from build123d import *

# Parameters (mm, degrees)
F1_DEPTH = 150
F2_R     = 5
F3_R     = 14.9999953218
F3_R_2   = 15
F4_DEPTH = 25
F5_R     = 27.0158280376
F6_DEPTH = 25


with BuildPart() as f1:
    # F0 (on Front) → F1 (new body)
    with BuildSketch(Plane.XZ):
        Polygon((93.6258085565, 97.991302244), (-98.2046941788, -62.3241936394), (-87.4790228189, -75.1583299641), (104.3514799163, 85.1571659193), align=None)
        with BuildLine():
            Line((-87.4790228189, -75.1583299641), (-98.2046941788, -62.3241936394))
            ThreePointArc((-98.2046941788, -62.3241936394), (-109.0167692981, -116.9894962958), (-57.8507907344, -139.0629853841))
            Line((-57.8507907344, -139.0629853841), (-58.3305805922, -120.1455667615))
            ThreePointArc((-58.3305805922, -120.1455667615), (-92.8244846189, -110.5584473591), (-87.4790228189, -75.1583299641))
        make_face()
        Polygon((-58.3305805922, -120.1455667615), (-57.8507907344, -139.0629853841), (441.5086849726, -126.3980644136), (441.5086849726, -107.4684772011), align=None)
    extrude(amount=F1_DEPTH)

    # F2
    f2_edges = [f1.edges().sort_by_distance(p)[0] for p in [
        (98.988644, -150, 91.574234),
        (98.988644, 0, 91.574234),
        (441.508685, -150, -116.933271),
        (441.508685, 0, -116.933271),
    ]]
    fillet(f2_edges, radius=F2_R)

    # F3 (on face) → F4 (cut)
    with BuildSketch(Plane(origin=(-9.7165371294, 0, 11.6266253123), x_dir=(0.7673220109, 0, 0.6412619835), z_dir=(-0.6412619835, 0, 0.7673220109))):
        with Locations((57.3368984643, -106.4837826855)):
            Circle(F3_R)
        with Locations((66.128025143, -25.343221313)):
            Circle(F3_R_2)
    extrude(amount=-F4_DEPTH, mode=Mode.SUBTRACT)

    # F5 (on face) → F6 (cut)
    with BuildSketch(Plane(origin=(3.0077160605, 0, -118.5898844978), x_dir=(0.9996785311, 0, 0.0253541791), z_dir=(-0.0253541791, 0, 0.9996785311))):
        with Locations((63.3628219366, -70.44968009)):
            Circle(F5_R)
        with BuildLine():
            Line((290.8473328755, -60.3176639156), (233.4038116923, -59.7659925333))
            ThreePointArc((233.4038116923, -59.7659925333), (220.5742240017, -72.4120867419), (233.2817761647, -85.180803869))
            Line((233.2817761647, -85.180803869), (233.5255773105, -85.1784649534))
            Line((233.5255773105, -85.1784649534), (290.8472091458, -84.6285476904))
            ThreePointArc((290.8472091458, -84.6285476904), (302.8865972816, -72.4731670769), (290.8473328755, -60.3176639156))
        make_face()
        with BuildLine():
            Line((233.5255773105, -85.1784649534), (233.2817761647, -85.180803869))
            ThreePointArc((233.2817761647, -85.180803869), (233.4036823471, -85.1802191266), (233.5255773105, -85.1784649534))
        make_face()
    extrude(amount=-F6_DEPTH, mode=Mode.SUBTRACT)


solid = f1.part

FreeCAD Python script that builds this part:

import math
import FreeCAD as App
import Part
import Sketcher

V = App.Vector


def edges_at(feature, points):
    """Names of the edges that pass closest to the given points."""
    edges = feature.Shape.Edges
    near = lambda p: min(range(len(edges)), key=lambda i: edges[i].distToShape(Part.Vertex(*p))[0])
    return sorted({f"Edge{near(p) + 1}" for p in points})

doc = App.newDocument("Part")
body = doc.addObject("PartDesign::Body", "Body")

# Sketch on XZ plane
sketch1 = body.newObject("Sketcher::SketchObject", "Sketch")
sketch1.AttachmentSupport = (doc.getObject("XZ_Plane"), [""])
sketch1.MapMode = "FlatFace"
sketch1.addGeometry(Part.LineSegment(V(93.625809, 97.991302, 0), V(-98.204694, -62.324194, 0)), False)
sketch1.addGeometry(Part.ArcOfCircle(Part.Circle(V(-69.768516, -96.350388, 0), V(0, 0, 1), 44.344088), math.radians(129.885987), math.radians(285.590236)), False)
sketch1.addGeometry(Part.LineSegment(V(-57.850791, -139.062985, 0), V(441.508685, -126.398064, 0)), False)
sketch1.addGeometry(Part.LineSegment(V(441.508685, -126.398064, 0), V(441.508685, -107.468477, 0)), False)
sketch1.addGeometry(Part.LineSegment(V(441.508685, -107.468477, 0), V(-58.330581, -120.145567, 0)), False)
sketch1.addGeometry(Part.ArcOfCircle(Part.Circle(V(-70.16457, -95.876478, 0), V(0, 0, 1), 27.000592), math.radians(129.885987), math.radians(295.994591)), False)
sketch1.addGeometry(Part.LineSegment(V(-87.479023, -75.15833, 0), V(104.35148, 85.157166, 0)), False)
sketch1.addGeometry(Part.LineSegment(V(104.35148, 85.157166, 0), V(93.625809, 97.991302, 0)), False)
sketch1.addConstraint(Sketcher.Constraint("Tangent", 0, 2, 1, 1))
sketch1.addConstraint(Sketcher.Constraint("Coincident", 1, 2, 2, 1))
sketch1.addConstraint(Sketcher.Constraint("Coincident", 2, 2, 3, 1))
sketch1.addConstraint(Sketcher.Constraint("Coincident", 3, 2, 4, 1))
sketch1.addConstraint(Sketcher.Constraint("Coincident", 4, 2, 5, 2))
sketch1.addConstraint(Sketcher.Constraint("Tangent", 5, 1, 6, 1))
sketch1.addConstraint(Sketcher.Constraint("Coincident", 6, 2, 7, 1))
sketch1.addConstraint(Sketcher.Constraint("Coincident", 7, 2, 0, 1))
sketch1.addConstraint(Sketcher.Constraint("Vertical", 3))
sketch1.addConstraint(Sketcher.Constraint("Parallel", 2, 4))
sketch1.addConstraint(Sketcher.Constraint("Parallel", 0, 6))
sketch1.addConstraint(Sketcher.Constraint("Perpendicular", 6, 7))
sketch1.addConstraint(Sketcher.Constraint("Equal", 0, 6))
sketch1.addConstraint(Sketcher.Constraint("Distance", 0, 250.0))
sketch1.addConstraint(Sketcher.Constraint("Distance", 4, 500.0))
sketch1.addConstraint(Sketcher.Constraint("Radius", 5, 27.000592))
sketch1.addConstraint(Sketcher.Constraint("Radius", 1, 44.344088))
sketch1.addConstraint(Sketcher.Constraint("DistanceY", 3, 2, 5, 3, 11.591999))
sketch1.addConstraint(Sketcher.Constraint("DistanceX", 1, 3, 2, 2, 511.277201))
sketch1.addConstraint(Sketcher.Constraint("Distance", 7, 16.725881))
sketch1.addConstraint(Sketcher.Constraint("DistanceY", 3, 1, 3, 2, 18.929587))
sketch1.addConstraint(Sketcher.Constraint("DistanceY", 1, 3, -1, 1, 96.350388))
sketch1.addConstraint(Sketcher.Constraint("DistanceX", 5, 3, -1, 1, 70.16457))
sketch1.addConstraint(Sketcher.Constraint("DistanceY", 5, 1, -1, 1, 75.15833))
pad1 = body.newObject("PartDesign::Pad", "Pad")
pad1.Profile = sketch1
pad1.Length = 150
doc.recompute()

fillet = body.newObject("PartDesign::Fillet", "Fillet")
fillet.Base = (pad1, edges_at(pad1, [
    (98.989, -150, 91.574),
    (98.989, 0, 91.574),
    (441.509, -150, -116.933),
    (441.509, 0, -116.933),
]))
fillet.Radius = 5

# Sketch on an angled plane
sketch2 = body.newObject("Sketcher::SketchObject", "Sketch001")
sketch2.Placement = App.Placement(V(-9.716537, 0, 11.626625), App.Rotation(V(0.767322011, 0, 0.641261984), V(0, 1.000000001, 0), V(-0.641261984, 0, 0.767322011), "ZXY"))
sketch2.addGeometry(Part.Circle(V(57.336899, -106.483783, 0), V(0, 0, 1), 14.999995), False)
sketch2.addGeometry(Part.Circle(V(66.128025, -25.343221, 0), V(0, 0, 1), 15), False)
sketch2.addConstraint(Sketcher.Constraint("Diameter", 1, 30.0))
sketch2.addConstraint(Sketcher.Constraint("Diameter", 0, 29.999991))
sketch2.addConstraint(Sketcher.Constraint("DistanceX", -1, 1, 0, 3, 57.336899))
sketch2.addConstraint(Sketcher.Constraint("DistanceY", 1, 3, -1, 1, 25.343221))
sketch2.addConstraint(Sketcher.Constraint("DistanceY", 0, 3, 1, 3, 81.140561))
sketch2.addConstraint(Sketcher.Constraint("DistanceX", -1, 1, 1, 3, 66.128025))
pocket1 = body.newObject("PartDesign::Pocket", "Pocket")
pocket1.Profile = sketch2
pocket1.Length = 25

# Sketch on an angled plane
sketch3 = body.newObject("Sketcher::SketchObject", "Sketch002")
sketch3.Placement = App.Placement(V(3.007716, 0, -118.589884), App.Rotation(V(0.999678531, 0, 0.025354179), V(0, 1, 0), V(-0.025354179, 0, 0.999678531), "ZXY"))
sketch3.addGeometry(Part.Circle(V(63.362822, -70.44968, 0), V(0, 0, 1), 27.015828), False)
sketch3.addGeometry(Part.LineSegment(V(290.847333, -60.317664, 0), V(233.403812, -59.765993, 0)), False)
sketch3.addGeometry(Part.ArcOfCircle(Part.Circle(V(233.281776, -72.473105, 0), V(0, 0, 1), 12.707699), math.radians(89.449764), math.radians(270)), False)
sketch3.addGeometry(Part.ArcOfCircle(Part.Circle(V(233.281776, -72.473104, 0), V(0, 0, 1), 12.7077), math.radians(-90), math.radians(-88.900695)), False)
sketch3.addGeometry(Part.LineSegment(V(233.525577, -85.178465, 0), V(290.847209, -84.628548, 0)), False)
sketch3.addGeometry(Part.ArcOfCircle(Part.Circle(V(290.730595, -72.473105, 0), V(0, 0, 1), 12.156002), math.radians(-89.450348), math.radians(89.449764)), False)
sketch3.addConstraint(Sketcher.Constraint("Tangent", 1, 2, 2, 1))
sketch3.addConstraint(Sketcher.Constraint("Tangent", 2, 2, 3, 1))
sketch3.addConstraint(Sketcher.Constraint("Coincident", 3, 2, 4, 1))
sketch3.addConstraint(Sketcher.Constraint("Tangent", 4, 2, 5, 1))
sketch3.addConstraint(Sketcher.Constraint("Tangent", 5, 2, 1, 1))
sketch3.addConstraint(Sketcher.Constraint("Equal", 2, 3))
sketch3.addConstraint(Sketcher.Constraint("Horizontal", 3, 3, 5, 3))
sketch3.addConstraint(Sketcher.Constraint("Vertical", 3, 3, 2, 2))
sketch3.addConstraint(Sketcher.Constraint("Radius", 5, 12.156002))
sketch3.addConstraint(Sketcher.Constraint("Radius", 2, 12.707699))
sketch3.addConstraint(Sketcher.Constraint("Diameter", 0, 54.031656))
sketch3.addConstraint(Sketcher.Constraint("DistanceX", 2, 2, 3, 2, 0.243801))
sketch3.addConstraint(Sketcher.Constraint("Distance", 1, 57.44617))
sketch3.addConstraint(Sketcher.Constraint("DistanceX", -1, 1, 0, 3, 63.362822))
sketch3.addConstraint(Sketcher.Constraint("DistanceY", 0, 3, -1, 1, 70.44968))
sketch3.addConstraint(Sketcher.Constraint("DistanceX", -1, 1, 1, 2, 233.403812))
sketch3.addConstraint(Sketcher.Constraint("DistanceY", 2, 3, -1, 1, 72.473105))
pocket2 = body.newObject("PartDesign::Pocket", "Pocket001")
pocket2.Profile = sketch3
pocket2.Length = 25

doc.recompute()
